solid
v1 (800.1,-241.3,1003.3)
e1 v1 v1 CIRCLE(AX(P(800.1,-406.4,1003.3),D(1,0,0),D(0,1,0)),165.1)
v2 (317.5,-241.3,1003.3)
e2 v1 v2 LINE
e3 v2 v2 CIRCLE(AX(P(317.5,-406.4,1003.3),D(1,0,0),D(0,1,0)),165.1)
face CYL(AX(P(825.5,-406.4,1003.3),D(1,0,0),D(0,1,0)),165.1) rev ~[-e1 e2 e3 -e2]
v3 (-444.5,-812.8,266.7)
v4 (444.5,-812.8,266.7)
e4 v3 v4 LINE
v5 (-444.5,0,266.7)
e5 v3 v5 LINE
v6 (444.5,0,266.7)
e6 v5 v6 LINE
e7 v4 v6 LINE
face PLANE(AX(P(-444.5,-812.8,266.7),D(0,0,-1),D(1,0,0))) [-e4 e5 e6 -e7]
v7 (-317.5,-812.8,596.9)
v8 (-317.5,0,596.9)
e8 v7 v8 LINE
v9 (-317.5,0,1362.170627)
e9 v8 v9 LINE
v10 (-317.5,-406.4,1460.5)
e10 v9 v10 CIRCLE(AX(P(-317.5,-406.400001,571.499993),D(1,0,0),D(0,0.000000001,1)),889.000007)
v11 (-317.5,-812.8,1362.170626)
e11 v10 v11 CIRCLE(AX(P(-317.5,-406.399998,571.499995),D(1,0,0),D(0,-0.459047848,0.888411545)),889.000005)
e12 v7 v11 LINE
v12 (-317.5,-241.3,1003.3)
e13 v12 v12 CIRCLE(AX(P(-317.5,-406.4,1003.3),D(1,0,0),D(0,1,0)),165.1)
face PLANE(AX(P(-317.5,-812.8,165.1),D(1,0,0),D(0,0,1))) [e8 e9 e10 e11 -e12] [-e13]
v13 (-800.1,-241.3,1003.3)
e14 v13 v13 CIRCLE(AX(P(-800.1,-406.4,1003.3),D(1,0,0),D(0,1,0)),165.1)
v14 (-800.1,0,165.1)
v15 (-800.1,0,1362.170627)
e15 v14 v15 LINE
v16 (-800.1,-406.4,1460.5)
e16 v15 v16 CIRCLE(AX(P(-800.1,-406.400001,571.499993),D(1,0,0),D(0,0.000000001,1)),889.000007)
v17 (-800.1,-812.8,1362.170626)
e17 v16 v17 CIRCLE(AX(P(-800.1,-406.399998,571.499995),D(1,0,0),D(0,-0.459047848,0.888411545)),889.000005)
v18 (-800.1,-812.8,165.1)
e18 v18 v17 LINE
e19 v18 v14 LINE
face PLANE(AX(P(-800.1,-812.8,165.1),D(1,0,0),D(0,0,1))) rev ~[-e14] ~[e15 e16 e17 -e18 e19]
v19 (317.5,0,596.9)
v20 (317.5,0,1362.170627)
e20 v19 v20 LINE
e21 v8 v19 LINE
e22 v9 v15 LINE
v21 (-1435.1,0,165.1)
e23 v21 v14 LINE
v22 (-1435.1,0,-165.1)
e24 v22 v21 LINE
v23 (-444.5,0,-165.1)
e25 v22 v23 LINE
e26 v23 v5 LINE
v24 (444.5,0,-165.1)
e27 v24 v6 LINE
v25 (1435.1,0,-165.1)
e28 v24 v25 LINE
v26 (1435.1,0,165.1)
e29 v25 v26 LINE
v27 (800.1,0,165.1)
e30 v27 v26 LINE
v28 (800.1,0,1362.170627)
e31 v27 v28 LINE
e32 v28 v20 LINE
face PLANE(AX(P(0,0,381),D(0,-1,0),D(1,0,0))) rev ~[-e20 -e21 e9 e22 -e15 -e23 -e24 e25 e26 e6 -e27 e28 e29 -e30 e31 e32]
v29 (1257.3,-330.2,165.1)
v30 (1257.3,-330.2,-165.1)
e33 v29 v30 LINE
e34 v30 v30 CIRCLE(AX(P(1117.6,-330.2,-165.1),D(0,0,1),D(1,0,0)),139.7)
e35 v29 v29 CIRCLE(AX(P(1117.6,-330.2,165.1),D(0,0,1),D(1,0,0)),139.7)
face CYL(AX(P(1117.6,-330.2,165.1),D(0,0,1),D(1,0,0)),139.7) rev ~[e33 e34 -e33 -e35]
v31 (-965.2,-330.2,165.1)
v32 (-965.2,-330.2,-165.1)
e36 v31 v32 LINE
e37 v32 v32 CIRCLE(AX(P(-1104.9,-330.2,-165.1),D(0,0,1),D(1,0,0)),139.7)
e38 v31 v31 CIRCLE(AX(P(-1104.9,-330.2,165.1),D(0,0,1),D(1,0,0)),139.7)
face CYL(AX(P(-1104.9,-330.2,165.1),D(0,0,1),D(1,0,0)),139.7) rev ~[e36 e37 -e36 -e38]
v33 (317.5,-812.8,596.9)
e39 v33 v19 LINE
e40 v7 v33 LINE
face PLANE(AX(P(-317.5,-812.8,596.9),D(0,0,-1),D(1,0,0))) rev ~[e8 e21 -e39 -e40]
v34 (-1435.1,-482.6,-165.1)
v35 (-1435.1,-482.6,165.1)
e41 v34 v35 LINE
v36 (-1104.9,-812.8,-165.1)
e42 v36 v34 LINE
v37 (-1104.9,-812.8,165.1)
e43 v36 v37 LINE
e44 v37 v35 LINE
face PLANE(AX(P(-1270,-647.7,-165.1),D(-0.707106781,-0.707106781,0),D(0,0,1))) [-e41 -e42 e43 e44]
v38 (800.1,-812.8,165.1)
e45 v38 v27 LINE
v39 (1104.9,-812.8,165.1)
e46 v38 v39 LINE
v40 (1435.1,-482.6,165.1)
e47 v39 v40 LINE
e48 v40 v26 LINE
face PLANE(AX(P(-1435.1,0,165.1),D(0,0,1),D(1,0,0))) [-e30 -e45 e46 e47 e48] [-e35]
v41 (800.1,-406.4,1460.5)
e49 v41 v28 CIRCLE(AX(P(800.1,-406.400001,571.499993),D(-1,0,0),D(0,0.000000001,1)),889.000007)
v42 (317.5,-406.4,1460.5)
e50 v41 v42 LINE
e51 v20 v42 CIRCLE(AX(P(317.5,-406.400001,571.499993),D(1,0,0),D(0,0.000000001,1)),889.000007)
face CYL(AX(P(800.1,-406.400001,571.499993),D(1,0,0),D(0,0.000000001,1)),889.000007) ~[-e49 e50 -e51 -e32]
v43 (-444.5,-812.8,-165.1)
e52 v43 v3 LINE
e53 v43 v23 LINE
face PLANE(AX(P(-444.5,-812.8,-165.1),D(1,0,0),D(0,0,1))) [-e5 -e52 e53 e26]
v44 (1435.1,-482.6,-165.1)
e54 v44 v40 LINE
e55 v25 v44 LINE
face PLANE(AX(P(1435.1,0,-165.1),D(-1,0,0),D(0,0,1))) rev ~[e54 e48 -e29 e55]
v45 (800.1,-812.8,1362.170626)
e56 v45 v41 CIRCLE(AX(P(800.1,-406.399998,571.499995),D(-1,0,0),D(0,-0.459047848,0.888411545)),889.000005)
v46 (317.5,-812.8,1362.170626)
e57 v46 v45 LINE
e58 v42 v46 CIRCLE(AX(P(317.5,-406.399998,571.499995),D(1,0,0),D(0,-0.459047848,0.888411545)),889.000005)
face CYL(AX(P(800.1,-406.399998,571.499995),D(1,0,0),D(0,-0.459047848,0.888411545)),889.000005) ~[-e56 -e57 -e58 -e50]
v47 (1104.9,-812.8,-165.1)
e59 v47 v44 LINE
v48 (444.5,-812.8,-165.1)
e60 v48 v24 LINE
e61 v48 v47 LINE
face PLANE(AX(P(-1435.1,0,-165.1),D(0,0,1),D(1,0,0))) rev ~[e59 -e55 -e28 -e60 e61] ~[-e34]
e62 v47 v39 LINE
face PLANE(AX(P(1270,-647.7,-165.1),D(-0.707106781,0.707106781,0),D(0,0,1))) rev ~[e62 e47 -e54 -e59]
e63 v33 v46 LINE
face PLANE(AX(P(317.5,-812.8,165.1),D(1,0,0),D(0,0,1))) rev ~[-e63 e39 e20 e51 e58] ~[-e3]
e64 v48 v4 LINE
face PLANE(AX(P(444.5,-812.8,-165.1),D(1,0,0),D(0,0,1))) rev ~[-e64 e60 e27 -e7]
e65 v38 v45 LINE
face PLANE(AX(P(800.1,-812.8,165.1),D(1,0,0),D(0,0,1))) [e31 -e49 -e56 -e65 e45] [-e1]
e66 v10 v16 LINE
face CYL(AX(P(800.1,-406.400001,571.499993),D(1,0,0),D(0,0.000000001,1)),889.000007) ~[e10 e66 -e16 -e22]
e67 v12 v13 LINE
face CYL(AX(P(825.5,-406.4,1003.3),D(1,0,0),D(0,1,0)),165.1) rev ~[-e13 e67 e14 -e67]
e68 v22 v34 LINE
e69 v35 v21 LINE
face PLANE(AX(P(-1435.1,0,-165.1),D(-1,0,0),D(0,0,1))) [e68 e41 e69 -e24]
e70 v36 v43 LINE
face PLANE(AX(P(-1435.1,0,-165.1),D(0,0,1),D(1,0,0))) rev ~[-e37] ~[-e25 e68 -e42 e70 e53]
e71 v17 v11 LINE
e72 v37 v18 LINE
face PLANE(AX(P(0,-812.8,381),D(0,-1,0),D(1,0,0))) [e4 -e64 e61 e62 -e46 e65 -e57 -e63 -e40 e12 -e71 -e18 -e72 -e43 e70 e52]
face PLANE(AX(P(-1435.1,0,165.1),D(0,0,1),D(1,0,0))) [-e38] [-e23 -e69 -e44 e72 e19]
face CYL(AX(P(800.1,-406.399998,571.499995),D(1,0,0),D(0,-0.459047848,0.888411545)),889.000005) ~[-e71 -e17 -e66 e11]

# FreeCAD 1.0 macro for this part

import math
import FreeCAD as App
import Part
import Sketcher

V = App.Vector
Q = App.Units.Quantity


def edges_at(feature, points):
    """Names of the edges that pass closest to the given points."""
    edges = feature.Shape.Edges
    near = lambda p: min(range(len(edges)), key=lambda i: edges[i].distToShape(Part.Vertex(*p))[0])
    return sorted({f"Edge{near(p) + 1}" for p in points})

doc = App.newDocument("Part")
params = doc.addObject("Spreadsheet::Sheet", "Params")
for row, (alias, value) in enumerate([
    ("sketch1_width", "113 in"),
    ("sketch1_height", "13 in"),
    ("pad1_length", "1 in"),
    ("sketch2_width", "113 in"),
    ("sketch2_height", "13 in"),
    ("pad2_length", "32 in"),
    ("sketch3_width", "19 in"),
    ("sketch3_height", "51 in"),
    ("pad3_length", "32 in"),
    ("sketch4_width", "25 in"),
    ("sketch4_height", "17 in"),
    ("pad4_length", "32 in"),
    ("sketch5_width", "35 in"),
    ("sketch5_height", "17 in"),
    ("sketch6_diameter", "11 in"),
    ("chamfer_size", "13 in"),
    ("chamfer_size2", "13 in"),
    ("sketch7_diameter", "13 in"),
    ("pad5_length", "1 in"),
    ("sketch8_diameter", "13 in"),
    ("sketch9_width", "16 in"),
], start=1):
    params.set(f"A{row}", alias)
    params.set(f"B{row}", "=" + value)
    params.setAlias(f"B{row}", alias)

body = doc.addObject("PartDesign::Body", "Body")

# Sketch on XZ plane
sketch1 = body.newObject("Sketcher::SketchObject", "Sketch")
sketch1.AttachmentSupport = (doc.getObject("XZ_Plane"), [""])
sketch1.MapMode = "FlatFace"
sketch1.addGeometry([
    Part.LineSegment(V(-1435.1, 165.1, 0), V(-1435.1, -165.1, 0)),
    Part.LineSegment(V(-1435.1, -165.1, 0), V(1435.1, -165.1, 0)),
    Part.LineSegment(V(1435.1, -165.1, 0), V(1435.1, 165.1, 0)),
    Part.LineSegment(V(1435.1, 165.1, 0), V(-1435.1, 165.1, 0)),
], False)
sketch1.addConstraint([
    Sketcher.Constraint("Coincident", 0, 2, 1, 1),
    Sketcher.Constraint("Coincident", 1, 2, 2, 1),
    Sketcher.Constraint("Coincident", 2, 2, 3, 1),
    Sketcher.Constraint("Coincident", 3, 2, 0, 1),
    Sketcher.Constraint("Vertical", 0),
    Sketcher.Constraint("Horizontal", 1),
    Sketcher.Constraint("Vertical", 2),
    Sketcher.Constraint("Horizontal", 3),
    Sketcher.Constraint("Symmetric", 0, 2, 2, 2, -1, 1),
    Sketcher.Constraint("DistanceX", 1, 1, 1, 2, Q("113 in")),
    Sketcher.Constraint("DistanceY", 0, 2, 0, 1, Q("13 in")),
])
sketch1.setExpression("Constraints[9]", "Params.sketch1_width")
sketch1.setExpression("Constraints[10]", "Params.sketch1_height")
pad1 = body.newObject("PartDesign::Pad", "Pad")
pad1.Profile = sketch1
pad1.setExpression("Length", "Params.pad1_length")

# Sketch on XZ plane
sketch2 = body.newObject("Sketcher::SketchObject", "Sketch001")
sketch2.AttachmentSupport = (doc.getObject("XZ_Plane"), [""])
sketch2.MapMode = "FlatFace"
sketch2.addGeometry([
    Part.LineSegment(V(-1435.1, 165.1, 0), V(-1435.1, -165.1, 0)),
    Part.LineSegment(V(-1435.1, -165.1, 0), V(1435.1, -165.1, 0)),
    Part.LineSegment(V(1435.1, -165.1, 0), V(1435.1, 165.1, 0)),
    Part.LineSegment(V(1435.1, 165.1, 0), V(-1435.1, 165.1, 0)),
], False)
sketch2.addConstraint([
    Sketcher.Constraint("Coincident", 0, 2, 1, 1),
    Sketcher.Constraint("Coincident", 1, 2, 2, 1),
    Sketcher.Constraint("Coincident", 2, 2, 3, 1),
    Sketcher.Constraint("Coincident", 3, 2, 0, 1),
    Sketcher.Constraint("Vertical", 0),
    Sketcher.Constraint("Horizontal", 1),
    Sketcher.Constraint("Vertical", 2),
    Sketcher.Constraint("Horizontal", 3),
    Sketcher.Constraint("Symmetric", 0, 2, 2, 2, -1, 1),
    Sketcher.Constraint("DistanceX", 1, 1, 1, 2, Q("113 in")),
    Sketcher.Constraint("DistanceY", 0, 2, 0, 1, Q("13 in")),
])
sketch2.setExpression("Constraints[9]", "Params.sketch2_width")
sketch2.setExpression("Constraints[10]", "Params.sketch2_height")
pad2 = body.newObject("PartDesign::Pad", "Pad001")
pad2.Profile = sketch2
pad2.setExpression("Length", "Params.pad2_length")

# Sketch on XZ plane
sketch3 = body.newObject("Sketcher::SketchObject", "Sketch002")
sketch3.AttachmentSupport = (doc.getObject("XZ_Plane"), [""])
sketch3.MapMode = "FlatFace"
sketch3.AttachmentOffset = App.Placement(V(0, 0, 32 * 25.4), App.Rotation())
sketch3.addGeometry([
    Part.LineSegment(V(-800.1, 1460.5, 0), V(-800.1, 165.1, 0)),  # 0
    Part.LineSegment(V(-800.1, 165.1, 0), V(-317.5, 165.1, 0)),  # 1
    Part.LineSegment(V(-317.5, 165.1, 0), V(-317.5, 1460.5, 0)),  # 2
    Part.LineSegment(V(-317.5, 1460.5, 0), V(-800.1, 1460.5, 0)),  # 3
    Part.LineSegment(V(317.5, 1460.5, 0), V(317.5, 165.1, 0)),  # 4
    Part.LineSegment(V(317.5, 165.1, 0), V(800.1, 165.1, 0)),  # 5
    Part.LineSegment(V(800.1, 165.1, 0), V(800.1, 1460.5, 0)),  # 6
    Part.LineSegment(V(800.1, 1460.5, 0), V(317.5, 1460.5, 0)),  # 7
], False)
sketch3.addConstraint([
    Sketcher.Constraint("Coincident", 0, 2, 1, 1),
    Sketcher.Constraint("Coincident", 1, 2, 2, 1),
    Sketcher.Constraint("Coincident", 2, 2, 3, 1),
    Sketcher.Constraint("Coincident", 3, 2, 0, 1),
    Sketcher.Constraint("Coincident", 4, 2, 5, 1),
    Sketcher.Constraint("Coincident", 5, 2, 6, 1),
    Sketcher.Constraint("Coincident", 6, 2, 7, 1),
    Sketcher.Constraint("Coincident", 7, 2, 4, 1),
    Sketcher.Constraint("Vertical", 0),
    Sketcher.Constraint("Horizontal", 1),
    Sketcher.Constraint("Vertical", 2),
    Sketcher.Constraint("Horizontal", 3),
    Sketcher.Constraint("Vertical", 4),
    Sketcher.Constraint("Horizontal", 5),
    Sketcher.Constraint("Vertical", 6),
    Sketcher.Constraint("Horizontal", 7),
    Sketcher.Constraint("Symmetric", 1, 2, 4, 2, -2),
    Sketcher.Constraint("Symmetric", 3, 2, 6, 2, -2),
    Sketcher.Constraint("DistanceX", 1, 1, 1, 2, Q("19 in")),
    Sketcher.Constraint("DistanceY", 0, 2, 0, 1, Q("51 in")),
    Sketcher.Constraint("DistanceX", 1, 2, 4, 2, Q("25 in")),
    Sketcher.Constraint("DistanceY", -1, 1, 0, 2, Q("6.5 in")),
])
sketch3.setExpression("Constraints[18]", "Params.sketch3_width")
sketch3.setExpression("Constraints[19]", "Params.sketch3_height")
pad3 = body.newObject("PartDesign::Pad", "Pad002")
pad3.Profile = sketch3
pad3.setExpression("Length", "Params.pad3_length")
pad3.Reversed = True

# Sketch on XZ plane
sketch4 = body.newObject("Sketcher::SketchObject", "Sketch003")
sketch4.AttachmentSupport = (doc.getObject("XZ_Plane"), [""])
sketch4.MapMode = "FlatFace"
sketch4.AttachmentOffset = App.Placement(V(0, 0, 32 * 25.4), App.Rotation())
sketch4.addGeometry([
    Part.LineSegment(V(-317.5, 596.9, 0), V(-317.5, 165.1, 0)),
    Part.LineSegment(V(-317.5, 165.1, 0), V(317.5, 165.1, 0)),
    Part.LineSegment(V(317.5, 165.1, 0), V(317.5, 596.9, 0)),
    Part.LineSegment(V(317.5, 596.9, 0), V(-317.5, 596.9, 0)),
], False)
sketch4.addConstraint([
    Sketcher.Constraint("Coincident", 0, 2, 1, 1),
    Sketcher.Constraint("Coincident", 1, 2, 2, 1),
    Sketcher.Constraint("Coincident", 2, 2, 3, 1),
    Sketcher.Constraint("Coincident", 3, 2, 0, 1),
    Sketcher.Constraint("Vertical", 0),
    Sketcher.Constraint("Horizontal", 1),
    Sketcher.Constraint("Vertical", 2),
    Sketcher.Constraint("Horizontal", 3),
    Sketcher.Constraint("DistanceX", 1, 1, 1, 2, Q("25 in")),
    Sketcher.Constraint("DistanceY", 0, 2, 0, 1, Q("17 in")),
    Sketcher.Constraint("DistanceX", 0, 2, -1, 1, Q("12.5 in")),
    Sketcher.Constraint("DistanceY", -1, 1, 0, 2, Q("6.5 in")),
])
sketch4.setExpression("Constraints[8]", "Params.sketch4_width")
sketch4.setExpression("Constraints[9]", "Params.sketch4_height")
pad4 = body.newObject("PartDesign::Pad", "Pad003")
pad4.Profile = sketch4
pad4.setExpression("Length", "Params.pad4_length")
pad4.Reversed = True

# Sketch on XZ plane
sketch5 = body.newObject("Sketcher::SketchObject", "Sketch004")
sketch5.AttachmentSupport = (doc.getObject("XZ_Plane"), [""])
sketch5.MapMode = "FlatFace"
sketch5.AttachmentOffset = App.Placement(V(0, 0, 32 * 25.4), App.Rotation())
sketch5.addGeometry([
    Part.LineSegment(V(-444.5, 266.7, 0), V(-444.5, -165.1, 0)),
    Part.LineSegment(V(-444.5, -165.1, 0), V(444.5, -165.1, 0)),
    Part.LineSegment(V(444.5, -165.1, 0), V(444.5, 266.7, 0)),
    Part.LineSegment(V(444.5, 266.7, 0), V(-444.5, 266.7, 0)),
], False)
sketch5.addConstraint([
    Sketcher.Constraint("Coincident", 0, 2, 1, 1),
    Sketcher.Constraint("Coincident", 1, 2, 2, 1),
    Sketcher.Constraint("Coincident", 2, 2, 3, 1),
    Sketcher.Constraint("Coincident", 3, 2, 0, 1),
    Sketcher.Constraint("Vertical", 0),
    Sketcher.Constraint("Horizontal", 1),
    Sketcher.Constraint("Vertical", 2),
    Sketcher.Constraint("Horizontal", 3),
    Sketcher.Constraint("DistanceX", 1, 1, 1, 2, Q("35 in")),
    Sketcher.Constraint("DistanceY", 0, 2, 0, 1, Q("17 in")),
    Sketcher.Constraint("DistanceX", 0, 2, -1, 1, Q("17.5 in")),
    Sketcher.Constraint("DistanceY", 0, 2, -1, 1, Q("6.5 in")),
])
sketch5.setExpression("Constraints[8]", "Params.sketch5_width")
sketch5.setExpression("Constraints[9]", "Params.sketch5_height")
pocket1 = body.newObject("PartDesign::Pocket", "Pocket")
pocket1.Profile = sketch5
pocket1.Type = "ThroughAll"

# Sketch on XY plane
sketch6 = body.newObject("Sketcher::SketchObject", "Sketch005")
sketch6.AttachmentSupport = (doc.getObject("XY_Plane"), [""])
sketch6.MapMode = "FlatFace"
sketch6.AttachmentOffset = App.Placement(V(0, 0, 6.5 * 25.4), App.Rotation())
sketch6.addGeometry([
    Part.Circle(V(1117.6, -330.2, 0), V(0, 0, 1), 139.7),
    Part.Circle(V(-1104.9, -330.2, 0), V(0, 0, 1), 139.7),
], False)
sketch6.addConstraint([
    Sketcher.Constraint("Equal", 0, 1),
    Sketcher.Constraint("Horizontal", 0, 3, 1, 3),
    Sketcher.Constraint("Diameter", 0, Q("11 in")),
    Sketcher.Constraint("DistanceX", -1, 1, 0, 3, Q("44 in")),
    Sketcher.Constraint("DistanceY", 0, 3, -1, 1, Q("13 in")),
    Sketcher.Constraint("DistanceX", 1, 3, -1, 1, Q("43.5 in")),
])
sketch6.setExpression("Constraints[2]", "Params.sketch6_diameter")
pocket2 = body.newObject("PartDesign::Pocket", "Pocket001")
pocket2.Profile = sketch6
pocket2.Type = "ThroughAll"
doc.recompute()

chamfer = body.newObject("PartDesign::Chamfer", "Chamfer")
chamfer.Base = (pocket2, edges_at(pocket2, [(-1435.1, -812.8, 0), (1435.1, -812.8, 0)]))
chamfer.ChamferType = "Two distances"
chamfer.setExpression("Size", "Params.chamfer_size")
chamfer.setExpression("Size2", "Params.chamfer_size2")

# Sketch on YZ plane
sketch7 = body.newObject("Sketcher::SketchObject", "Sketch006")
sketch7.AttachmentSupport = (doc.getObject("YZ_Plane"), [""])
sketch7.MapMode = "FlatFace"
sketch7.AttachmentOffset = App.Placement(V(0, 0, 31.5 * 25.4), App.Rotation())
sketch7.addGeometry(Part.Circle(V(-406.4, 1003.3, 0), V(0, 0, 1), 165.1), False)
sketch7.addConstraint([
    Sketcher.Constraint("Diameter", 0, Q("13 in")),
    Sketcher.Constraint("DistanceX", 0, 3, -1, 1, Q("16 in")),
    Sketcher.Constraint("DistanceY", -1, 1, 0, 3, Q("39.5 in")),
])
sketch7.setExpression("Constraints[0]", "Params.sketch7_diameter")
pad5 = body.newObject("PartDesign::Pad", "Pad004")
pad5.Profile = sketch7
pad5.setExpression("Length", "Params.pad5_length")

# Sketch on YZ plane
sketch8 = body.newObject("Sketcher::SketchObject", "Sketch007")
sketch8.AttachmentSupport = (doc.getObject("YZ_Plane"), [""])
sketch8.MapMode = "FlatFace"
sketch8.AttachmentOffset = App.Placement(V(0, 0, 32.5 * 25.4), App.Rotation())
sketch8.addGeometry(Part.Circle(V(-406.4, 1003.3, 0), V(0, 0, 1), 165.1), False)
sketch8.addConstraint([
    Sketcher.Constraint("Diameter", 0, Q("13 in")),
    Sketcher.Constraint("DistanceX", 0, 3, -1, 1, Q("16 in")),
    Sketcher.Constraint("DistanceY", -1, 1, 0, 3, Q("39.5 in")),
])
sketch8.setExpression("Constraints[0]", "Params.sketch8_diameter")
pocket3 = body.newObject("PartDesign::Pocket", "Pocket002")
pocket3.Profile = sketch8
pocket3.Type = "ThroughAll"

# Sketch on YZ plane
sketch9 = body.newObject("Sketcher::SketchObject", "Sketch008")
sketch9.AttachmentSupport = (doc.getObject("YZ_Plane"), [""])
sketch9.MapMode = "FlatFace"
sketch9.AttachmentOffset = App.Placement(V(0, 0, 31.5 * 25.4), App.Rotation())
sketch9.addGeometry([
    Part.ArcOfCircle(Part.Circle(V(-406.399998, 571.499995, 0), V(0, 0, 1), 889.000005), math.radians(90), math.radians(117.325684)),  # 0
    Part.LineSegment(V(-406.4, 1460.5, 0), V(-812.8, 1460.5, 0)),  # 1
    Part.LineSegment(V(-812.8, 1460.5, 0), V(-814.493537, 1361.297863, 0)),  # 2
    Part.ArcOfCircle(Part.Circle(V(-406.400001, 571.499993, 0), V(0, 0, 1), 889.000007), math.radians(62.797106), math.radians(90)),  # 3
    Part.LineSegment(V(0, 1362.170627, 0), V(0, 1460.5, 0)),  # 4
    Part.LineSegment(V(0, 1460.5, 0), V(-406.4, 1460.5, 0)),  # 5
], False)
sketch9.addConstraint([
    Sketcher.Constraint("Tangent", 0, 1, 1, 1),
    Sketcher.Constraint("Coincident", 1, 2, 2, 1),
    Sketcher.Constraint("Coincident", 2, 2, 0, 2),
    Sketcher.Constraint("Coincident", 3, 1, 4, 1),
    Sketcher.Constraint("Coincident", 4, 2, 5, 1),
    Sketcher.Constraint("Tangent", 5, 2, 3, 2),
    Sketcher.Constraint("Horizontal", 1),
    Sketcher.Constraint("Vertical", 4),
    Sketcher.Constraint("Horizontal", 5),
    Sketcher.Constraint("Coincident", 3, 3, 0, 3),
    Sketcher.Constraint("Equal", 0, 3),
    Sketcher.Constraint("PointOnObject", 4, 2, -2),
    Sketcher.Constraint("Equal", 1, 5),
    Sketcher.Constraint("DistanceX", 1, 2, 1, 1, Q("16 in")),
    Sketcher.Constraint("DistanceY", -1, 1, 0, 1, Q("57.5 in")),
    Sketcher.Constraint("Radius", 0, 889.000005),
    Sketcher.Constraint("Distance", 2, 99.216592),
])
sketch9.setExpression("Constraints[13]", "Params.sketch9_width")
pocket4 = body.newObject("PartDesign::Pocket", "Pocket003")
pocket4.Profile = sketch9
pocket4.Type = "ThroughAll"

doc.recompute()
